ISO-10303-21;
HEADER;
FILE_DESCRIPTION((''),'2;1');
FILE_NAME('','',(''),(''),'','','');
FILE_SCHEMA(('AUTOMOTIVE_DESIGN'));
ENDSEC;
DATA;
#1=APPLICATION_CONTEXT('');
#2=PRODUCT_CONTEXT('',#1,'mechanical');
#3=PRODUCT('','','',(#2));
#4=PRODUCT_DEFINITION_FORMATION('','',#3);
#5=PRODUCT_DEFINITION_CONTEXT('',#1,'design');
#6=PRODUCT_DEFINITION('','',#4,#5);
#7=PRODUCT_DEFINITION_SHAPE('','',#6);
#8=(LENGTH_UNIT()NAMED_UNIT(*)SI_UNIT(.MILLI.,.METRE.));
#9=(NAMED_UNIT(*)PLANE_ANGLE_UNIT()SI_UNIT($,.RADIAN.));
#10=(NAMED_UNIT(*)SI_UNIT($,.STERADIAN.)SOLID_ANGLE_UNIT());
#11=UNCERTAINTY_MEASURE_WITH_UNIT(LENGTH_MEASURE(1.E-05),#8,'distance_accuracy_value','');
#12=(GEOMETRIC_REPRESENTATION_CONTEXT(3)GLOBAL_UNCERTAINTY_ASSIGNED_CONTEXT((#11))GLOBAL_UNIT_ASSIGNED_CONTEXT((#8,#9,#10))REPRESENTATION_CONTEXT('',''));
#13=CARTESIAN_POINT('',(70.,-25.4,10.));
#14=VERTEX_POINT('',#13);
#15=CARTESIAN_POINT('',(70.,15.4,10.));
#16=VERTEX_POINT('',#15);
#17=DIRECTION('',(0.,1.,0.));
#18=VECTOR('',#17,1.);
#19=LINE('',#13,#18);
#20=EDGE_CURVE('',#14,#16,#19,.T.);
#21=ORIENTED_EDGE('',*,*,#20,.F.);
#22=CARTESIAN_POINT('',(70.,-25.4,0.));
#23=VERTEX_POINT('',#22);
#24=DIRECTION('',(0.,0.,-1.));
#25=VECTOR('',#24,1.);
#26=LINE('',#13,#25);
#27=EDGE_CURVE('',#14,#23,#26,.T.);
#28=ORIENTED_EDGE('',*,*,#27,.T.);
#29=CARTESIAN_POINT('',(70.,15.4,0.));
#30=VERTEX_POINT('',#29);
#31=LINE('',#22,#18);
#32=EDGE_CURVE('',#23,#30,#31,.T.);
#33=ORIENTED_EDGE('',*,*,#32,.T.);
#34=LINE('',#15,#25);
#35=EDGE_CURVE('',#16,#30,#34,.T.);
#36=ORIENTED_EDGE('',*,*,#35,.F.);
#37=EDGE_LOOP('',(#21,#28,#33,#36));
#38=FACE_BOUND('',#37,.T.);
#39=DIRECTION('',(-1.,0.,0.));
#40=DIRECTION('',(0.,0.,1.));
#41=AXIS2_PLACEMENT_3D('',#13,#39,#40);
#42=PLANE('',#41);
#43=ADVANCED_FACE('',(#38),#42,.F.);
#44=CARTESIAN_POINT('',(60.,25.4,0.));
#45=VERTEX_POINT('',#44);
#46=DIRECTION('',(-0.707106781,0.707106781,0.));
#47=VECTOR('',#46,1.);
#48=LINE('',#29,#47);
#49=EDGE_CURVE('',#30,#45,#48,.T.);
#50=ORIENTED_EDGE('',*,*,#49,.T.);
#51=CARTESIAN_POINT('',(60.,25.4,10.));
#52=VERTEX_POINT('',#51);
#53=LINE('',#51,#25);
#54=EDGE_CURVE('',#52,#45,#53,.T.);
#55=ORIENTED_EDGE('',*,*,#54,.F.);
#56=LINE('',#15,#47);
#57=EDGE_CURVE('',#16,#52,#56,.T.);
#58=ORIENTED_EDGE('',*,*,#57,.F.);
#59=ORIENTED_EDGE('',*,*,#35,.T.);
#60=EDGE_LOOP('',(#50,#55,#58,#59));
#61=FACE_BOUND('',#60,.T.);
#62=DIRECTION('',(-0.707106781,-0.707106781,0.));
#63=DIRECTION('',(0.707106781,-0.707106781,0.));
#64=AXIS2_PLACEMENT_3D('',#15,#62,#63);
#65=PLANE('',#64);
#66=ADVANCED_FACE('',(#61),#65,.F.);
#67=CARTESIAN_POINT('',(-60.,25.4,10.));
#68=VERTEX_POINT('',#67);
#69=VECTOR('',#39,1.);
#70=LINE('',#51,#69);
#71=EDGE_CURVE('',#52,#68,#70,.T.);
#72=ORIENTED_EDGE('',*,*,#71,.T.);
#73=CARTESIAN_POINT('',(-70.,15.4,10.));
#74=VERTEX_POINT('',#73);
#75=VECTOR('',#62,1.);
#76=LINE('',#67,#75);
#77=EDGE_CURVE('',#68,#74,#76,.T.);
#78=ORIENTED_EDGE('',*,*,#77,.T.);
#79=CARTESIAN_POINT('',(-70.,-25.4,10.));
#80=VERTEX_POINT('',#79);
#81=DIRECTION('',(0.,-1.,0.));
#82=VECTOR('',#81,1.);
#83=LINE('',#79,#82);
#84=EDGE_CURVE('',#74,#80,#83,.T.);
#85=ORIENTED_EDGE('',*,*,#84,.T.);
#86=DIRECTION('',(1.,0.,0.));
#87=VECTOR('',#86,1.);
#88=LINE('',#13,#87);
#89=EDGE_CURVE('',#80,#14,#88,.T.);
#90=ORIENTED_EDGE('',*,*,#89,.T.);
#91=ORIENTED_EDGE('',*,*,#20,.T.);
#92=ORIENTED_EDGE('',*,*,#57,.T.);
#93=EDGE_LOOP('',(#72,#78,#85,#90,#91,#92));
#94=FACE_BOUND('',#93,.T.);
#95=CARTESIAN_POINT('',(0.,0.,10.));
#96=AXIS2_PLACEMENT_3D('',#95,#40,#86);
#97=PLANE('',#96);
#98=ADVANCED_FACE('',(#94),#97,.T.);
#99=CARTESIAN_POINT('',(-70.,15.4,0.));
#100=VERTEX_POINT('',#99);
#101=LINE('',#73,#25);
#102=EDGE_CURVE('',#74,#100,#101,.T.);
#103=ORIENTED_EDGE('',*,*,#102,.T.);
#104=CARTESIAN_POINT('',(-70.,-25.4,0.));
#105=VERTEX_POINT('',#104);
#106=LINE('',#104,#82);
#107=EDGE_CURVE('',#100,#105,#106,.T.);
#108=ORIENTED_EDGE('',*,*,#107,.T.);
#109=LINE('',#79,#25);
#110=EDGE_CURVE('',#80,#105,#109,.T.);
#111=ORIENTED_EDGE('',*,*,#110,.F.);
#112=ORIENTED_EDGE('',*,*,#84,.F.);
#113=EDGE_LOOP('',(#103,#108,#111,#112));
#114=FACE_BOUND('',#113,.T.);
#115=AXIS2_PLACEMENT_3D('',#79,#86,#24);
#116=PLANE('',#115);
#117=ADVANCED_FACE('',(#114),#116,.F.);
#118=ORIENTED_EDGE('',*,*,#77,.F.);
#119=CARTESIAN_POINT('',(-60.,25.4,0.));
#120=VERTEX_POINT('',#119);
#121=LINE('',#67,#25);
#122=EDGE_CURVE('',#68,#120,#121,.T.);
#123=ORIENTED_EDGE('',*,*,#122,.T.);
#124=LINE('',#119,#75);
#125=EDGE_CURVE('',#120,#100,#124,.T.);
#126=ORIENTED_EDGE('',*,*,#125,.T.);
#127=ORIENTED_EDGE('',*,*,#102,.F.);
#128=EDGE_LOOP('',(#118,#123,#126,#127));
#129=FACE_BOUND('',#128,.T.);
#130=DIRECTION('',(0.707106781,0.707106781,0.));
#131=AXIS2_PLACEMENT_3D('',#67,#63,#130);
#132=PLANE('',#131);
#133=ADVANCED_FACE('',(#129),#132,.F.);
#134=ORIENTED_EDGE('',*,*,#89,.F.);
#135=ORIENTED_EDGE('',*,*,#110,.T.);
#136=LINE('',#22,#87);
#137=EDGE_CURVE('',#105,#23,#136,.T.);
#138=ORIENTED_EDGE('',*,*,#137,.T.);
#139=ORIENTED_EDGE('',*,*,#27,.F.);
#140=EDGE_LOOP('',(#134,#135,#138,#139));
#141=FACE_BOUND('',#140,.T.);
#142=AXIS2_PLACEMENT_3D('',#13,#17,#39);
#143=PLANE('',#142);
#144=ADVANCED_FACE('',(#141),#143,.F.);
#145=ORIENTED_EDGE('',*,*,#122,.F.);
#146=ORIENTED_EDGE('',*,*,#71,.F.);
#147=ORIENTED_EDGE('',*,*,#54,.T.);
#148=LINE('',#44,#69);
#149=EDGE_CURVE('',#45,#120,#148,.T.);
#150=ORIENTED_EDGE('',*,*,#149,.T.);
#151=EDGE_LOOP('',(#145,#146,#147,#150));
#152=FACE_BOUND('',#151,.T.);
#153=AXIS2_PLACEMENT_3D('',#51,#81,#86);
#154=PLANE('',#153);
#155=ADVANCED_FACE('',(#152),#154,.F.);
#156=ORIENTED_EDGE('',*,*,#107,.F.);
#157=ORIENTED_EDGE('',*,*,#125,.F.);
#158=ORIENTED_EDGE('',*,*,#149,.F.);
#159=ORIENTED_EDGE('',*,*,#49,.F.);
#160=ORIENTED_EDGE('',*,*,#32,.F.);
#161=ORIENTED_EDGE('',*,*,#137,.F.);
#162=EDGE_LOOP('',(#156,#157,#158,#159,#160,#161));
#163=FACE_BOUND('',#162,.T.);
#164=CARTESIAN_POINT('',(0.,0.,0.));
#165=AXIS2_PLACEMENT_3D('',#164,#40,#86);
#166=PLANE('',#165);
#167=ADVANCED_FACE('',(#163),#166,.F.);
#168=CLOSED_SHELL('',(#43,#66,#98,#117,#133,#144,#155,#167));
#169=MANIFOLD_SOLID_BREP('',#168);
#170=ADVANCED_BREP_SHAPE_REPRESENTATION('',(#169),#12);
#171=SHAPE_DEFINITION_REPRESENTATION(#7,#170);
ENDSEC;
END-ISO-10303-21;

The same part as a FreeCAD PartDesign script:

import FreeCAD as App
import Part
import Sketcher
from FreeCAD import Vector
Q = App.Units.Quantity

doc = App.newDocument("Part")
body = doc.addObject("PartDesign::Body", "Body")

# Sketch on XY plane
sketch1 = body.newObject("Sketcher::SketchObject", "Sketch")
sketch1.AttachmentSupport = (doc.getObject("XY_Plane"), [""])
sketch1.MapMode = "FlatFace"
sketch1.addGeometry([
    Part.LineSegment(Vector(-60, 25, 0), Vector(-70, 15, 0)),  # 0
    Part.LineSegment(Vector(-70, 15, 0), Vector(-70, -25, 0)),  # 1
    Part.LineSegment(Vector(-70, -25, 0), Vector(70, -25, 0)),  # 2
    Part.LineSegment(Vector(70, -25, 0), Vector(70, 15, 0)),  # 3
    Part.LineSegment(Vector(70, 15, 0), Vector(60, 25, 0)),  # 4
    Part.LineSegment(Vector(60, 25, 0), Vector(-60, 25, 0)),  # 5
], False)
sketch1.addConstraint([
    Sketcher.Constraint("Coincident", 0, 2, 1, 1),
    Sketcher.Constraint("Coincident", 1, 2, 2, 1),
    Sketcher.Constraint("Coincident", 2, 2, 3, 1),
    Sketcher.Constraint("Coincident", 3, 2, 4, 1),
    Sketcher.Constraint("Coincident", 4, 2, 5, 1),
    Sketcher.Constraint("Coincident", 5, 2, 0, 1),
    Sketcher.Constraint("Vertical", 1),
    Sketcher.Constraint("Horizontal", 2),
    Sketcher.Constraint("Vertical", 3),
    Sketcher.Constraint("Horizontal", 5),
    Sketcher.Constraint("Symmetric", 0, 2, 3, 2, -2),
    Sketcher.Constraint("Perpendicular", 0, 4),
    Sketcher.Constraint("Equal", 0, 4),
    Sketcher.Constraint("DistanceX", 2, 1, 2, 2, Q("140 mm")),
    Sketcher.Constraint("DistanceX", 5, 2, 5, 1, Q("120 mm")),
    Sketcher.Constraint("DistanceY", 1, 2, 1, 1, Q("40.8 mm")),
    Sketcher.Constraint("DistanceY", -1, 1, 0, 2, Q("15.4 mm")),
])
pad1 = body.newObject("PartDesign::Pad", "Pad")
pad1.Profile = sketch1
pad1.Length = 10

doc.recompute()
